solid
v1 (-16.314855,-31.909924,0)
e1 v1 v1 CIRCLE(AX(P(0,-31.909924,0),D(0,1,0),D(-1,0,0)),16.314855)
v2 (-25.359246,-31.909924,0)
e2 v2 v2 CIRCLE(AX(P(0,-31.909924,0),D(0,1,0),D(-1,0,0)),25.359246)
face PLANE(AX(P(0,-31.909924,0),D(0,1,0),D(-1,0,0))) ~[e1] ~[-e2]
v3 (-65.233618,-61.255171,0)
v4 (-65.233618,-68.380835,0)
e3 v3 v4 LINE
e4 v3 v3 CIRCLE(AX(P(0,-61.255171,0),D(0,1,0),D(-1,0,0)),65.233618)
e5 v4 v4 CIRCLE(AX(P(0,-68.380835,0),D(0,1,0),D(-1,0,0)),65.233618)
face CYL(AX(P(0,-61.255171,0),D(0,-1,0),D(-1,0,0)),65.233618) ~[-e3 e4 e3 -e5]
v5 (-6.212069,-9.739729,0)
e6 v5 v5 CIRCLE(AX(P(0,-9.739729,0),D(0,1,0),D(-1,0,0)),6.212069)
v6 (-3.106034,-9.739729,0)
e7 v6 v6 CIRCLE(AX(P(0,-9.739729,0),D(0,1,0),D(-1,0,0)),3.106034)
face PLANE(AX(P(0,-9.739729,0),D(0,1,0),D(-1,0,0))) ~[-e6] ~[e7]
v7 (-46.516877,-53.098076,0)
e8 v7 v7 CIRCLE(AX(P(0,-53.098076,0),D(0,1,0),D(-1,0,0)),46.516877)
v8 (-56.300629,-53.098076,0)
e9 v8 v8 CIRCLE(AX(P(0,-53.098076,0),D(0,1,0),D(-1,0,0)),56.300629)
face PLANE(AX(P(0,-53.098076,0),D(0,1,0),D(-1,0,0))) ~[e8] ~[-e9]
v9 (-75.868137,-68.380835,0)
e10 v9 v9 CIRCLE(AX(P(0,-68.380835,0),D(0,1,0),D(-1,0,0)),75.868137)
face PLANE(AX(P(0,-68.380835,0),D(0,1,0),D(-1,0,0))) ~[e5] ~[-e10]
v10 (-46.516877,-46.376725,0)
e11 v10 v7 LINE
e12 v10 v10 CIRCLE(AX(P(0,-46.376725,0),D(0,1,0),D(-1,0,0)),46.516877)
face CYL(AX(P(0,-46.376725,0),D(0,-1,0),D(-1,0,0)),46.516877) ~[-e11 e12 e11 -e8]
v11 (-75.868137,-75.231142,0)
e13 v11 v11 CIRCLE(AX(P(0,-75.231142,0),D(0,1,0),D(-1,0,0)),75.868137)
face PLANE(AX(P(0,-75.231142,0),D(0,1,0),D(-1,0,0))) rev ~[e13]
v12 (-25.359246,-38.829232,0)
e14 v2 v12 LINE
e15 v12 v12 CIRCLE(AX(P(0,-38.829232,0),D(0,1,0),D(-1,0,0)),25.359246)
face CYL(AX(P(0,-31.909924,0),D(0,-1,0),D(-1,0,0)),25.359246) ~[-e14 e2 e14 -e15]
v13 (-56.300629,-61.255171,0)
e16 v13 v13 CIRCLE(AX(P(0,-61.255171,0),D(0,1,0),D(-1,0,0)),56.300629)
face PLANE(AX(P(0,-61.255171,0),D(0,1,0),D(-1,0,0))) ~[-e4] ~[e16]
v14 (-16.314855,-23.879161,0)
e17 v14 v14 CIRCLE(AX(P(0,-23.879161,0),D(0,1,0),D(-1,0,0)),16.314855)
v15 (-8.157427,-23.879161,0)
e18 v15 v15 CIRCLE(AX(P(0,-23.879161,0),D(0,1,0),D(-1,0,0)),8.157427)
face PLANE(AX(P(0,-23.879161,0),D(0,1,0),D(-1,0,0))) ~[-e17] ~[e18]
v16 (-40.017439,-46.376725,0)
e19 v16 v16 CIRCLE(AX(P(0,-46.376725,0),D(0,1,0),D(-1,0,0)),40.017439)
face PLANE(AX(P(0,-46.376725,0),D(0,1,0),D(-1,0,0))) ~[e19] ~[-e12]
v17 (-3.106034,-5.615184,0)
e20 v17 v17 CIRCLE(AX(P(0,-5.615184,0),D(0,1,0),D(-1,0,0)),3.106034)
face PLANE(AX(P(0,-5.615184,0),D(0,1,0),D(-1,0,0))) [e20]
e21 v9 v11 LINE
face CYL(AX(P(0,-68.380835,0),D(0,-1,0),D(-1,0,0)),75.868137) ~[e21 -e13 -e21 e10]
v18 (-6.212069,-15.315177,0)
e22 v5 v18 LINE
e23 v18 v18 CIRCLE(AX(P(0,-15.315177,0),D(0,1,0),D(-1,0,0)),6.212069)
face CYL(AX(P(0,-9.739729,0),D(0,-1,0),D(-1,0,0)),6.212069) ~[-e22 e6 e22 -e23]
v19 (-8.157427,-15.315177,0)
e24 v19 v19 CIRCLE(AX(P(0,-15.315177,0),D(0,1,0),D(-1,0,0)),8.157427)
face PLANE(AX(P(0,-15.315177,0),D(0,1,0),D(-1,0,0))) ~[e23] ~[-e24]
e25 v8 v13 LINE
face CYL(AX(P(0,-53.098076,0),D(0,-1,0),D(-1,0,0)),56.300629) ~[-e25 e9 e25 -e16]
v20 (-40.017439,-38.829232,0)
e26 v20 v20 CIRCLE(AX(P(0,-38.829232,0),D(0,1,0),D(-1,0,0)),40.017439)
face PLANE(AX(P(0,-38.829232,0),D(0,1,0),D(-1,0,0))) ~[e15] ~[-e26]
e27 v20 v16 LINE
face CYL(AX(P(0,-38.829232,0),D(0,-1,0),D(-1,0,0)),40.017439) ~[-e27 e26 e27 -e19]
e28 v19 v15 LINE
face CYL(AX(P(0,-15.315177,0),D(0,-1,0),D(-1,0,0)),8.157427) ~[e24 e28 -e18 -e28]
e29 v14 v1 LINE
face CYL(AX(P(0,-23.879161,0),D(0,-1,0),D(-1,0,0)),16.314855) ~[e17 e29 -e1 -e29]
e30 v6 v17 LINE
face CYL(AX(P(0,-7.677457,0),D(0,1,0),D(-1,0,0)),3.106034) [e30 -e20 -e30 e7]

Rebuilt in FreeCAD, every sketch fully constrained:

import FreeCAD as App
import Part
import Sketcher
from FreeCAD import Vector
Q = App.Units.Quantity

doc = App.newDocument("Part")
body = doc.addObject("PartDesign::Body", "Body")

sketch1 = body.newObject("Sketcher::SketchObject", "Sketch")
sketch1.AttachmentSupport = (doc.getObject("XY_Plane"), [""])
sketch1.MapMode = "FlatFace"
sketch1.addGeometry([
    Part.LineSegment(Vector(-75.9, -68.4, 0), Vector(-75.9, -75.2, 0)),
    Part.LineSegment(Vector(-75.9, -75.2, 0), Vector(0, -75.2, 0)),
    Part.LineSegment(Vector(0, -75.2, 0), Vector(0, -5.6, 0)),
    Part.LineSegment(Vector(0, -5.6, 0), Vector(-3.1, -5.6, 0)),
    Part.LineSegment(Vector(-3.1, -5.6, 0), Vector(-3.1, -9.7, 0)),
    Part.LineSegment(Vector(-3.1, -9.7, 0), Vector(-6.2, -9.7, 0)),
    Part.LineSegment(Vector(-6.2, -9.7, 0), Vector(-6.2, -15.3, 0)),
    Part.LineSegment(Vector(-6.2, -15.3, 0), Vector(-8.2, -15.3, 0)),
    Part.LineSegment(Vector(-8.2, -15.3, 0), Vector(-8.2, -23.9, 0)),
    Part.LineSegment(Vector(-8.2, -23.9, 0), Vector(-16.3, -23.9, 0)),
    Part.LineSegment(Vector(-16.3, -23.9, 0), Vector(-16.3, -31.9, 0)),
    Part.LineSegment(Vector(-16.3, -31.9, 0), Vector(-25.4, -31.9, 0)),
    Part.LineSegment(Vector(-25.4, -31.9, 0), Vector(-25.4, -38.8, 0)),
    Part.LineSegment(Vector(-25.4, -38.8, 0), Vector(-40, -38.8, 0)),
    Part.LineSegment(Vector(-40, -38.8, 0), Vector(-40, -46.4, 0)),
    Part.LineSegment(Vector(-40, -46.4, 0), Vector(-46.5, -46.4, 0)),
    Part.LineSegment(Vector(-46.5, -46.4, 0), Vector(-46.5, -53.1, 0)),
    Part.LineSegment(Vector(-46.5, -53.1, 0), Vector(-56.3, -53.1, 0)),
    Part.LineSegment(Vector(-56.3, -53.1, 0), Vector(-56.3, -61.3, 0)),
    Part.LineSegment(Vector(-56.3, -61.3, 0), Vector(-65.2, -61.3, 0)),
    Part.LineSegment(Vector(-65.2, -61.3, 0), Vector(-65.2, -68.4, 0)),
    Part.LineSegment(Vector(-65.2, -68.4, 0), Vector(-75.9, -68.4, 0)),
], False)
sketch1.addConstraint([
    Sketcher.Constraint("Coincident", 0, 2, 1, 1),
    Sketcher.Constraint("Coincident", 1, 2, 2, 1),
    Sketcher.Constraint("Coincident", 2, 2, 3, 1),
    Sketcher.Constraint("Coincident", 3, 2, 4, 1),
    Sketcher.Constraint("Coincident", 4, 2, 5, 1),
    Sketcher.Constraint("Coincident", 5, 2, 6, 1),
    Sketcher.Constraint("Coincident", 6, 2, 7, 1),
    Sketcher.Constraint("Coincident", 7, 2, 8, 1),
    Sketcher.Constraint("Coincident", 8, 2, 9, 1),
    Sketcher.Constraint("Coincident", 9, 2, 10, 1),
    Sketcher.Constraint("Coincident", 10, 2, 11, 1),
    Sketcher.Constraint("Coincident", 11, 2, 12, 1),
    Sketcher.Constraint("Coincident", 12, 2, 13, 1),
    Sketcher.Constraint("Coincident", 13, 2, 14, 1),
    Sketcher.Constraint("Coincident", 14, 2, 15, 1),
    Sketcher.Constraint("Coincident", 15, 2, 16, 1),
    Sketcher.Constraint("Coincident", 16, 2, 17, 1),
    Sketcher.Constraint("Coincident", 17, 2, 18, 1),
    Sketcher.Constraint("Coincident", 18, 2, 19, 1),
    Sketcher.Constraint("Coincident", 19, 2, 20, 1),
    Sketcher.Constraint("Coincident", 20, 2, 21, 1),
    Sketcher.Constraint("Coincident", 21, 2, 0, 1),
    Sketcher.Constraint("Vertical", 0),
    Sketcher.Constraint("Horizontal", 1),
    Sketcher.Constraint("Vertical", 2),
    Sketcher.Constraint("Horizontal", 3),
    Sketcher.Constraint("Vertical", 4),
    Sketcher.Constraint("Horizontal", 5),
    Sketcher.Constraint("Vertical", 6),
    Sketcher.Constraint("Horizontal", 7),
    Sketcher.Constraint("Vertical", 8),
    Sketcher.Constraint("Horizontal", 9),
    Sketcher.Constraint("Vertical", 10),
    Sketcher.Constraint("Horizontal", 11),
    Sketcher.Constraint("Vertical", 12),
    Sketcher.Constraint("Horizontal", 13),
    Sketcher.Constraint("Vertical", 14),
    Sketcher.Constraint("Horizontal", 15),
    Sketcher.Constraint("Vertical", 16),
    Sketcher.Constraint("Horizontal", 17),
    Sketcher.Constraint("Vertical", 18),
    Sketcher.Constraint("Horizontal", 19),
    Sketcher.Constraint("Vertical", 20),
    Sketcher.Constraint("Horizontal", 21),
    Sketcher.Constraint("PointOnObject", 1, 2, -2),
    Sketcher.Constraint("Equal", 3, 5),
    Sketcher.Constraint("DistanceX", 7, 2, 7, 1, Q("1.945359 mm")),
    Sketcher.Constraint("DistanceX", 11, 2, 11, 1, Q("9.044391 mm")),
    Sketcher.Constraint("DistanceX", 19, 2, 19, 1, Q("8.932989 mm")),
    Sketcher.Constraint("DistanceX", 21, 2, 21, 1, Q("10.634519 mm")),
    Sketcher.Constraint("DistanceY", 6, 2, 6, 1, Q("5.575448 mm")),
    Sketcher.Constraint("DistanceY", 12, 2, 12, 1, Q("6.919308 mm")),
    Sketcher.Constraint("DistanceY", 16, 2, 16, 1, Q("6.721351 mm")),
    Sketcher.Constraint("DistanceY", 14, 2, 11, 2, Q("14.466801 mm")),
    Sketcher.Constraint("DistanceX", 1, 1, 1, 2, Q("75.868137 mm")),
    Sketcher.Constraint("DistanceX", 3, 2, 3, 1, Q("3.106034 mm")),
    Sketcher.Constraint("DistanceX", 9, 2, 9, 1, Q("8.157427 mm")),
    Sketcher.Constraint("DistanceX", 13, 2, 13, 1, Q("14.658193 mm")),
    Sketcher.Constraint("DistanceX", 15, 2, 15, 1, Q("6.499438 mm")),
    Sketcher.Constraint("DistanceY", 0, 2, 0, 1, Q("6.850308 mm")),
    Sketcher.Constraint("DistanceY", 2, 1, 2, 2, Q("69.615958 mm")),
    Sketcher.Constraint("DistanceY", 4, 2, 4, 1, Q("4.124545 mm")),
    Sketcher.Constraint("DistanceY", 8, 2, 8, 1, Q("8.563983 mm")),
    Sketcher.Constraint("DistanceY", 10, 2, 10, 1, Q("8.030763 mm")),
    Sketcher.Constraint("DistanceY", 18, 2, 18, 1, Q("8.157095 mm")),
    Sketcher.Constraint("DistanceY", 4, 2, -1, 1, Q("9.739729 mm")),
])
revolution = body.newObject("PartDesign::Revolution", "Revolution")
revolution.Profile = sketch1
revolution.ReferenceAxis = (sketch1, ["V_Axis"])
revolution.Angle = 360

doc.recompute()
